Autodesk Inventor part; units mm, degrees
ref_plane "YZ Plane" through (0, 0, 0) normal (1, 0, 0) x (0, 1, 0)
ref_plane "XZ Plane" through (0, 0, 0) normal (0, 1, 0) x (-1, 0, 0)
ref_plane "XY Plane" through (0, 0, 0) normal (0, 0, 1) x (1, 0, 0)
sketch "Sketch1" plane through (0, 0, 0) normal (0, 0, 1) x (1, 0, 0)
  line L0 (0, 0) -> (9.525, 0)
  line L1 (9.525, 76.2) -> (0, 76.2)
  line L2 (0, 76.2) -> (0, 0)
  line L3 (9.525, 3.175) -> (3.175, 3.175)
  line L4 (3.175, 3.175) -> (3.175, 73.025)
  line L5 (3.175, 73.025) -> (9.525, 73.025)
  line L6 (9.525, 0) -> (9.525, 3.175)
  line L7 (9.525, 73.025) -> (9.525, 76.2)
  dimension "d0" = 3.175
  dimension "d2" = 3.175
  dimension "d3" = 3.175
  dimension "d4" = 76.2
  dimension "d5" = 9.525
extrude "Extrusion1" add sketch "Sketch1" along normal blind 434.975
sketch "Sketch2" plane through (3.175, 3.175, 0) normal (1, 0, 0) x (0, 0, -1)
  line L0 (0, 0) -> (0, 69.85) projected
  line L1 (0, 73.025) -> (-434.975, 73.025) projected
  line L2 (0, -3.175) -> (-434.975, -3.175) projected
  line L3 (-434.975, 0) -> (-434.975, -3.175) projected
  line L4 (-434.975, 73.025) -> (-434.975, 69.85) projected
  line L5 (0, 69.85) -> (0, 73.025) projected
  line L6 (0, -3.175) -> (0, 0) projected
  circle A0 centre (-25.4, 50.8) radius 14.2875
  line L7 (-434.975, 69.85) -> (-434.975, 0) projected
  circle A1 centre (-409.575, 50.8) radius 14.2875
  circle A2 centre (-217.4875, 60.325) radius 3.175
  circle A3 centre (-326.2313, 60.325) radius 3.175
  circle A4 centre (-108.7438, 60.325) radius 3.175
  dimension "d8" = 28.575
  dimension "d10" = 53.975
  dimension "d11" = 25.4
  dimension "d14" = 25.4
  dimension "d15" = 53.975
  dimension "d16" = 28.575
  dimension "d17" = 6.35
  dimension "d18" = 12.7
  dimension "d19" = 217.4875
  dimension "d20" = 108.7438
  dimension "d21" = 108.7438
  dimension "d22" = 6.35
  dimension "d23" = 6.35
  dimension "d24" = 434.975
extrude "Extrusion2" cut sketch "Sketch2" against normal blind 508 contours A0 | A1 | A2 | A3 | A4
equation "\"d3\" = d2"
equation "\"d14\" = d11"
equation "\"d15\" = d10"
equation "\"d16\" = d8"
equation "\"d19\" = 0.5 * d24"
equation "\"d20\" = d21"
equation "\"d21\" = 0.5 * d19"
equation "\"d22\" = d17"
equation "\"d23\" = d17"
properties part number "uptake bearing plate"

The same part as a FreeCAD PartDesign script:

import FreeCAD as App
import Part
import Sketcher
from FreeCAD import Vector
Q = App.Units.Quantity

doc = App.newDocument("Part")
params = doc.addObject("Spreadsheet::Sheet", "Params")
for row, (alias, value) in enumerate([
    ("sketch1_height", "3 in"),
    ("sketch1_width", "0.375 in"),
    ("sketch1_height2", "0.125 in"),
    ("pad1_length", "17.125 in"),
    ("sketch2_diameter", "0.25 in"),
    ("sketch2_diameter2", "1.125 in"),
    ("pocket1_length", "20 in"),
], start=1):
    params.set(f"A{row}", alias)
    params.set(f"B{row}", "=" + value)
    params.setAlias(f"B{row}", alias)

body = doc.addObject("PartDesign::Body", "Body")

# Sketch on XY plane
sketch1 = doc.addObject("Sketcher::SketchObject", "Sketch")
body.addObject(sketch1)
sketch1.AttachmentSupport = (doc.XY_Plane, [""])
sketch1.MapMode = "FlatFace"
sketch1.addGeometry(Part.LineSegment(Vector(0, 76.2, 0), Vector(0, 0, 0)), False)
sketch1.addGeometry(Part.LineSegment(Vector(0, 0, 0), Vector(9.5, 0, 0)), False)
sketch1.addGeometry(Part.LineSegment(Vector(9.5, 0, 0), Vector(9.5, 3.2, 0)), False)
sketch1.addGeometry(Part.LineSegment(Vector(9.5, 3.2, 0), Vector(3.2, 3.2, 0)), False)
sketch1.addGeometry(Part.LineSegment(Vector(3.2, 3.2, 0), Vector(3.2, 73, 0)), False)
sketch1.addGeometry(Part.LineSegment(Vector(3.2, 73, 0), Vector(9.5, 73, 0)), False)
sketch1.addGeometry(Part.LineSegment(Vector(9.5, 73, 0), Vector(9.5, 76.2, 0)), False)
sketch1.addGeometry(Part.LineSegment(Vector(9.5, 76.2, 0), Vector(0, 76.2, 0)), False)
sketch1.addConstraint(Sketcher.Constraint("Coincident", 0, 2, 1, 1))
sketch1.addConstraint(Sketcher.Constraint("Coincident", 1, 2, 2, 1))
sketch1.addConstraint(Sketcher.Constraint("Coincident", 2, 2, 3, 1))
sketch1.addConstraint(Sketcher.Constraint("Coincident", 3, 2, 4, 1))
sketch1.addConstraint(Sketcher.Constraint("Coincident", 4, 2, 5, 1))
sketch1.addConstraint(Sketcher.Constraint("Coincident", 5, 2, 6, 1))
sketch1.addConstraint(Sketcher.Constraint("Coincident", 6, 2, 7, 1))
sketch1.addConstraint(Sketcher.Constraint("Coincident", 7, 2, 0, 1))
sketch1.addConstraint(Sketcher.Constraint("Vertical", 0))
sketch1.addConstraint(Sketcher.Constraint("Horizontal", 1))
sketch1.addConstraint(Sketcher.Constraint("Vertical", 2))
sketch1.addConstraint(Sketcher.Constraint("Horizontal", 3))
sketch1.addConstraint(Sketcher.Constraint("Vertical", 4))
sketch1.addConstraint(Sketcher.Constraint("Horizontal", 5))
sketch1.addConstraint(Sketcher.Constraint("Vertical", 6))
sketch1.addConstraint(Sketcher.Constraint("Horizontal", 7))
sketch1.addConstraint(Sketcher.Constraint("Coincident", 0, 2, -1, 1))
sketch1.addConstraint(Sketcher.Constraint("Vertical", 2, 2, 5, 2))
sketch1.addConstraint(Sketcher.Constraint("Equal", 2, 6))
sketch1.addConstraint(Sketcher.Constraint("DistanceY", 0, 2, 0, 1, Q("3 in")))
sketch1.addConstraint(Sketcher.Constraint("DistanceX", 1, 1, 1, 2, Q("0.375 in")))
sketch1.addConstraint(Sketcher.Constraint("DistanceY", 2, 1, 2, 2, Q("0.125 in")))
sketch1.addConstraint(Sketcher.Constraint("DistanceX", -1, 1, 3, 2, Q("0.125 in")))
sketch1.setExpression("Constraints[19]", "Params.sketch1_height")
sketch1.setExpression("Constraints[20]", "Params.sketch1_width")
sketch1.setExpression("Constraints[21]", "Params.sketch1_height2")
pad1 = doc.addObject("PartDesign::Pad", "Pad")
body.addObject(pad1)
pad1.Profile = sketch1
pad1.setExpression("Length", "Params.pad1_length")

# Sketch on YZ plane
sketch2 = doc.addObject("Sketcher::SketchObject", "Sketch001")
body.addObject(sketch2)
sketch2.AttachmentSupport = (doc.YZ_Plane, [""])
sketch2.MapMode = "FlatFace"
sketch2.AttachmentOffset = App.Placement(Vector(0, 0, 0.125 * 25.4), App.Rotation())
sketch2.addGeometry(Part.Circle(Vector(54, 25.4, 0), Vector(0, 0, 1), 14.3), False)
sketch2.addGeometry(Part.Circle(Vector(54, 409.6, 0), Vector(0, 0, 1), 14.3), False)
sketch2.addGeometry(Part.Circle(Vector(63.5, 217.5, 0), Vector(0, 0, 1), 3.2), False)
sketch2.addGeometry(Part.Circle(Vector(63.5, 326.2, 0), Vector(0, 0, 1), 3.2), False)
sketch2.addGeometry(Part.Circle(Vector(63.5, 108.7, 0), Vector(0, 0, 1), 3.2), False)
sketch2.addConstraint(Sketcher.Constraint("Equal", 0, 1))
sketch2.addConstraint(Sketcher.Constraint("Equal", 2, 3))
sketch2.addConstraint(Sketcher.Constraint("Equal", 3, 4))
sketch2.addConstraint(Sketcher.Constraint("Vertical", 0, 3, 1, 3))
sketch2.addConstraint(Sketcher.Constraint("Vertical", 2, 3, 3, 3))
sketch2.addConstraint(Sketcher.Constraint("Vertical", 3, 3, 4, 3))
sketch2.addConstraint(Sketcher.Constraint("Diameter", 2, Q("0.25 in")))
sketch2.addConstraint(Sketcher.Constraint("Diameter", 0, Q("1.125 in")))
sketch2.addConstraint(Sketcher.Constraint("DistanceY", -1, 1, 0, 3, Q("1 in")))
sketch2.addConstraint(Sketcher.Constraint("DistanceX", -1, 1, 0, 3, Q("2.125 in")))
sketch2.addConstraint(Sketcher.Constraint("DistanceY", -1, 1, 2, 3, Q("8.5625 in")))
sketch2.addConstraint(Sketcher.Constraint("DistanceY", -1, 1, 4, 3, Q("4.281252 in")))
sketch2.addConstraint(Sketcher.Constraint("DistanceY", 2, 3, 3, 3, Q("4.281252 in")))
sketch2.addConstraint(Sketcher.Constraint("DistanceX", -1, 1, 2, 3, Q("2.5 in")))
sketch2.addConstraint(Sketcher.Constraint("DistanceY", -1, 1, 1, 3, Q("16.125 in")))
sketch2.setExpression("Constraints[6]", "Params.sketch2_diameter")
sketch2.setExpression("Constraints[7]", "Params.sketch2_diameter2")
pocket1 = doc.addObject("PartDesign::Pocket", "Pocket")
body.addObject(pocket1)
pocket1.Profile = sketch2
pocket1.setExpression("Length", "Params.pocket1_length")

doc.recompute()
